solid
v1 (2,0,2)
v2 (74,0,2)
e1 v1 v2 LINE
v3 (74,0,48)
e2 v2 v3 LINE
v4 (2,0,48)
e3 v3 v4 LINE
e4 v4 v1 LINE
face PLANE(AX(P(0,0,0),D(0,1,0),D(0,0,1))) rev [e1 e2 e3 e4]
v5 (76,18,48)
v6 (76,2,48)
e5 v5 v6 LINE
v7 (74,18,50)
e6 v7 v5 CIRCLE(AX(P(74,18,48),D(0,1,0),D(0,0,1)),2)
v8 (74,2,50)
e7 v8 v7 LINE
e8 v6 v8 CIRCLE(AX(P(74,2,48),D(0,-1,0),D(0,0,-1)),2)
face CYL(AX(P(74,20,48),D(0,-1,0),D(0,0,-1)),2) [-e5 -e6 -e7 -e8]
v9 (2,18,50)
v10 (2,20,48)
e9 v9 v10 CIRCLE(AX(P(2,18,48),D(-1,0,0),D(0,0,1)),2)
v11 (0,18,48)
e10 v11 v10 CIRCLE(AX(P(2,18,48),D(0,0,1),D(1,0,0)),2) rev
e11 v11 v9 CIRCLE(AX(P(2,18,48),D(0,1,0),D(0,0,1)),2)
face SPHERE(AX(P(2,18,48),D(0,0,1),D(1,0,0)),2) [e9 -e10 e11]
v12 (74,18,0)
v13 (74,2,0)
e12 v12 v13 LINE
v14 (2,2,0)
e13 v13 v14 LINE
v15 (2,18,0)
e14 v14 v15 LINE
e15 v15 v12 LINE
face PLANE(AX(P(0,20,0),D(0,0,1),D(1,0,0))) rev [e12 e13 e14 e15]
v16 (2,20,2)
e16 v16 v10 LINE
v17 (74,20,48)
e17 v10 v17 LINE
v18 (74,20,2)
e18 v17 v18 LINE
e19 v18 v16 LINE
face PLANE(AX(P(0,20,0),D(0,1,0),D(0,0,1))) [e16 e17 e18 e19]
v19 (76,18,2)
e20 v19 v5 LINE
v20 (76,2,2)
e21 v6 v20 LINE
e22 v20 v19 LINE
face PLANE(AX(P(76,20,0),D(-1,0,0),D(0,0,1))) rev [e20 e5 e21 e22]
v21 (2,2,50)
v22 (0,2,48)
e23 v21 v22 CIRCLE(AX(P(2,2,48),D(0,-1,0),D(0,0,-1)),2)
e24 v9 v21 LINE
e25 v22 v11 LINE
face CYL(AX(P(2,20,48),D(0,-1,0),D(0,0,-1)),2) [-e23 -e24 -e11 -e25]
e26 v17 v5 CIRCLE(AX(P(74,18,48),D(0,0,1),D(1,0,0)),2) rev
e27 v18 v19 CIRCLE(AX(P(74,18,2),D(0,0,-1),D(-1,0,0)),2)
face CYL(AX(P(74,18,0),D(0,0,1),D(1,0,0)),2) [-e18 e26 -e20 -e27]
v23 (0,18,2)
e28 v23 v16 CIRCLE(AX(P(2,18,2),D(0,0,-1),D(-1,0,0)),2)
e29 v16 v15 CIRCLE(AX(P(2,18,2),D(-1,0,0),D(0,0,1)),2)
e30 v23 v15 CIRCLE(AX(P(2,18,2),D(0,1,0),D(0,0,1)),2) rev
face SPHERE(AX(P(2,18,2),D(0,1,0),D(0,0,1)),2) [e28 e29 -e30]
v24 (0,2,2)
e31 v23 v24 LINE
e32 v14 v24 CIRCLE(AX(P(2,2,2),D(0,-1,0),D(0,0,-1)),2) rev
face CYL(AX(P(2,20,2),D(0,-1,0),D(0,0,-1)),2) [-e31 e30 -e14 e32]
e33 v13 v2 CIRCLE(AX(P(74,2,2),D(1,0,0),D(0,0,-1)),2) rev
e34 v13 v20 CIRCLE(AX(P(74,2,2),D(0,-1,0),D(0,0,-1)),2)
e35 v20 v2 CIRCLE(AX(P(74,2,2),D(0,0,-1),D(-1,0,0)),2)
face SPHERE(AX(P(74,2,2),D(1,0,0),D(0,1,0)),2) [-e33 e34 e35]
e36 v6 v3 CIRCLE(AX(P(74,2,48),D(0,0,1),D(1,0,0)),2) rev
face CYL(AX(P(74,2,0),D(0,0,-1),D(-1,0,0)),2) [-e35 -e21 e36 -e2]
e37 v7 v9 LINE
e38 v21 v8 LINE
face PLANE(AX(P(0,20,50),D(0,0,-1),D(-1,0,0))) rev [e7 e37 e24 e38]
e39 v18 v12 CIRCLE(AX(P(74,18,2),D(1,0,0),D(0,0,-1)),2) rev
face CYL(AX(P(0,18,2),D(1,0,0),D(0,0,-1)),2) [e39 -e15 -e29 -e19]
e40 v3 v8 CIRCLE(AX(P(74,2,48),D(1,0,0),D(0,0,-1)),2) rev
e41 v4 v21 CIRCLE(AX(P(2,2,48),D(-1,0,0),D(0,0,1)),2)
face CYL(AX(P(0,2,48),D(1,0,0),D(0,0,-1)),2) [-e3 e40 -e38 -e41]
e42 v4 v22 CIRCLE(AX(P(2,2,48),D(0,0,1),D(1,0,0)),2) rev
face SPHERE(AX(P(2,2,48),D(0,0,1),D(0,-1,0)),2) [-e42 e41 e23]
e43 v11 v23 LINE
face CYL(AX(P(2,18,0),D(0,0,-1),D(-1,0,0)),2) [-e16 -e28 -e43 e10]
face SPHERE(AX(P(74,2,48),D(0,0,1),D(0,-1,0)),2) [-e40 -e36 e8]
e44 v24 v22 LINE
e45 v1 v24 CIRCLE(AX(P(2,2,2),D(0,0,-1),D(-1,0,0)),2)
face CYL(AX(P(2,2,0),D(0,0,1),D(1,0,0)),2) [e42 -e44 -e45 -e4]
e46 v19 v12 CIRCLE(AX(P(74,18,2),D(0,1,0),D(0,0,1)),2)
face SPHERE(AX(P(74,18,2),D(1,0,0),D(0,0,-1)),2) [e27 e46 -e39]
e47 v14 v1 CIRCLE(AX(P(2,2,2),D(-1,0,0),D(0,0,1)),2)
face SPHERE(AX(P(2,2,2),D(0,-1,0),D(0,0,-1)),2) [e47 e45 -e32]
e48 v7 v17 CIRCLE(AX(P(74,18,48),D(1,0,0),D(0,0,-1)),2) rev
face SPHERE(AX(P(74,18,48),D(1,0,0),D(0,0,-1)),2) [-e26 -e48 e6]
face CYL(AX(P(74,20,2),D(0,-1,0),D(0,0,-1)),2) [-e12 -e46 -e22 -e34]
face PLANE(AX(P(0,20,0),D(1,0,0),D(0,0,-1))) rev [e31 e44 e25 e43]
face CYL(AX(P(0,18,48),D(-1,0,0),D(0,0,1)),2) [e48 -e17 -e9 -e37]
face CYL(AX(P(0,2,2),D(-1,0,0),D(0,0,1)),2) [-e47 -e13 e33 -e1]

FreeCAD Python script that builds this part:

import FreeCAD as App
import Part
import Sketcher
Q = App.Units.Quantity


def add_polygon(sketch, points):
    """Adds a closed chain of lines whose ends are joined by coincident constraints."""
    first, n = sketch.GeometryCount, len(points)
    for a, b in zip(points, points[1:] + points[:1]):
        sketch.addGeometry(Part.LineSegment(App.Vector(*a, 0), App.Vector(*b, 0)), False)
    for i in range(n):
        sketch.addConstraint(Sketcher.Constraint("Coincident", first + i, 2, first + (i + 1) % n, 1))

doc = App.newDocument("Part")
body = doc.addObject("PartDesign::Body", "Body")

# Sketch on XZ plane
sketch1 = body.newObject("Sketcher::SketchObject", "Sketch")
sketch1.AttachmentSupport = (doc.getObject("XZ_Plane"), [""])
sketch1.MapMode = "FlatFace"
add_polygon(sketch1, [(0, 0), (0, 50), (76, 50), (76, 0)])  # lines 0-3
sketch1.addConstraint(Sketcher.Constraint("Vertical", 0))
sketch1.addConstraint(Sketcher.Constraint("Horizontal", 1))
sketch1.addConstraint(Sketcher.Constraint("Vertical", 2))
sketch1.addConstraint(Sketcher.Constraint("Horizontal", 3))
sketch1.addConstraint(Sketcher.Constraint("Coincident", 3, 2, -1, 1))
sketch1.addConstraint(Sketcher.Constraint("DistanceX", 1, 1, 1, 2, Q("76 mm")))
sketch1.addConstraint(Sketcher.Constraint("DistanceY", 0, 1, 0, 2, Q("50 mm")))
pad1 = body.newObject("PartDesign::Pad", "Pad")
pad1.Profile = sketch1
pad1.Length = 20
pad1.Reversed = True
doc.recompute()

fillet = body.newObject("PartDesign::Fillet", "Fillet")
fillet.Base = (pad1, ["Edge1"])
fillet.UseAllEdges = True
fillet.Radius = 2

doc.recompute()
